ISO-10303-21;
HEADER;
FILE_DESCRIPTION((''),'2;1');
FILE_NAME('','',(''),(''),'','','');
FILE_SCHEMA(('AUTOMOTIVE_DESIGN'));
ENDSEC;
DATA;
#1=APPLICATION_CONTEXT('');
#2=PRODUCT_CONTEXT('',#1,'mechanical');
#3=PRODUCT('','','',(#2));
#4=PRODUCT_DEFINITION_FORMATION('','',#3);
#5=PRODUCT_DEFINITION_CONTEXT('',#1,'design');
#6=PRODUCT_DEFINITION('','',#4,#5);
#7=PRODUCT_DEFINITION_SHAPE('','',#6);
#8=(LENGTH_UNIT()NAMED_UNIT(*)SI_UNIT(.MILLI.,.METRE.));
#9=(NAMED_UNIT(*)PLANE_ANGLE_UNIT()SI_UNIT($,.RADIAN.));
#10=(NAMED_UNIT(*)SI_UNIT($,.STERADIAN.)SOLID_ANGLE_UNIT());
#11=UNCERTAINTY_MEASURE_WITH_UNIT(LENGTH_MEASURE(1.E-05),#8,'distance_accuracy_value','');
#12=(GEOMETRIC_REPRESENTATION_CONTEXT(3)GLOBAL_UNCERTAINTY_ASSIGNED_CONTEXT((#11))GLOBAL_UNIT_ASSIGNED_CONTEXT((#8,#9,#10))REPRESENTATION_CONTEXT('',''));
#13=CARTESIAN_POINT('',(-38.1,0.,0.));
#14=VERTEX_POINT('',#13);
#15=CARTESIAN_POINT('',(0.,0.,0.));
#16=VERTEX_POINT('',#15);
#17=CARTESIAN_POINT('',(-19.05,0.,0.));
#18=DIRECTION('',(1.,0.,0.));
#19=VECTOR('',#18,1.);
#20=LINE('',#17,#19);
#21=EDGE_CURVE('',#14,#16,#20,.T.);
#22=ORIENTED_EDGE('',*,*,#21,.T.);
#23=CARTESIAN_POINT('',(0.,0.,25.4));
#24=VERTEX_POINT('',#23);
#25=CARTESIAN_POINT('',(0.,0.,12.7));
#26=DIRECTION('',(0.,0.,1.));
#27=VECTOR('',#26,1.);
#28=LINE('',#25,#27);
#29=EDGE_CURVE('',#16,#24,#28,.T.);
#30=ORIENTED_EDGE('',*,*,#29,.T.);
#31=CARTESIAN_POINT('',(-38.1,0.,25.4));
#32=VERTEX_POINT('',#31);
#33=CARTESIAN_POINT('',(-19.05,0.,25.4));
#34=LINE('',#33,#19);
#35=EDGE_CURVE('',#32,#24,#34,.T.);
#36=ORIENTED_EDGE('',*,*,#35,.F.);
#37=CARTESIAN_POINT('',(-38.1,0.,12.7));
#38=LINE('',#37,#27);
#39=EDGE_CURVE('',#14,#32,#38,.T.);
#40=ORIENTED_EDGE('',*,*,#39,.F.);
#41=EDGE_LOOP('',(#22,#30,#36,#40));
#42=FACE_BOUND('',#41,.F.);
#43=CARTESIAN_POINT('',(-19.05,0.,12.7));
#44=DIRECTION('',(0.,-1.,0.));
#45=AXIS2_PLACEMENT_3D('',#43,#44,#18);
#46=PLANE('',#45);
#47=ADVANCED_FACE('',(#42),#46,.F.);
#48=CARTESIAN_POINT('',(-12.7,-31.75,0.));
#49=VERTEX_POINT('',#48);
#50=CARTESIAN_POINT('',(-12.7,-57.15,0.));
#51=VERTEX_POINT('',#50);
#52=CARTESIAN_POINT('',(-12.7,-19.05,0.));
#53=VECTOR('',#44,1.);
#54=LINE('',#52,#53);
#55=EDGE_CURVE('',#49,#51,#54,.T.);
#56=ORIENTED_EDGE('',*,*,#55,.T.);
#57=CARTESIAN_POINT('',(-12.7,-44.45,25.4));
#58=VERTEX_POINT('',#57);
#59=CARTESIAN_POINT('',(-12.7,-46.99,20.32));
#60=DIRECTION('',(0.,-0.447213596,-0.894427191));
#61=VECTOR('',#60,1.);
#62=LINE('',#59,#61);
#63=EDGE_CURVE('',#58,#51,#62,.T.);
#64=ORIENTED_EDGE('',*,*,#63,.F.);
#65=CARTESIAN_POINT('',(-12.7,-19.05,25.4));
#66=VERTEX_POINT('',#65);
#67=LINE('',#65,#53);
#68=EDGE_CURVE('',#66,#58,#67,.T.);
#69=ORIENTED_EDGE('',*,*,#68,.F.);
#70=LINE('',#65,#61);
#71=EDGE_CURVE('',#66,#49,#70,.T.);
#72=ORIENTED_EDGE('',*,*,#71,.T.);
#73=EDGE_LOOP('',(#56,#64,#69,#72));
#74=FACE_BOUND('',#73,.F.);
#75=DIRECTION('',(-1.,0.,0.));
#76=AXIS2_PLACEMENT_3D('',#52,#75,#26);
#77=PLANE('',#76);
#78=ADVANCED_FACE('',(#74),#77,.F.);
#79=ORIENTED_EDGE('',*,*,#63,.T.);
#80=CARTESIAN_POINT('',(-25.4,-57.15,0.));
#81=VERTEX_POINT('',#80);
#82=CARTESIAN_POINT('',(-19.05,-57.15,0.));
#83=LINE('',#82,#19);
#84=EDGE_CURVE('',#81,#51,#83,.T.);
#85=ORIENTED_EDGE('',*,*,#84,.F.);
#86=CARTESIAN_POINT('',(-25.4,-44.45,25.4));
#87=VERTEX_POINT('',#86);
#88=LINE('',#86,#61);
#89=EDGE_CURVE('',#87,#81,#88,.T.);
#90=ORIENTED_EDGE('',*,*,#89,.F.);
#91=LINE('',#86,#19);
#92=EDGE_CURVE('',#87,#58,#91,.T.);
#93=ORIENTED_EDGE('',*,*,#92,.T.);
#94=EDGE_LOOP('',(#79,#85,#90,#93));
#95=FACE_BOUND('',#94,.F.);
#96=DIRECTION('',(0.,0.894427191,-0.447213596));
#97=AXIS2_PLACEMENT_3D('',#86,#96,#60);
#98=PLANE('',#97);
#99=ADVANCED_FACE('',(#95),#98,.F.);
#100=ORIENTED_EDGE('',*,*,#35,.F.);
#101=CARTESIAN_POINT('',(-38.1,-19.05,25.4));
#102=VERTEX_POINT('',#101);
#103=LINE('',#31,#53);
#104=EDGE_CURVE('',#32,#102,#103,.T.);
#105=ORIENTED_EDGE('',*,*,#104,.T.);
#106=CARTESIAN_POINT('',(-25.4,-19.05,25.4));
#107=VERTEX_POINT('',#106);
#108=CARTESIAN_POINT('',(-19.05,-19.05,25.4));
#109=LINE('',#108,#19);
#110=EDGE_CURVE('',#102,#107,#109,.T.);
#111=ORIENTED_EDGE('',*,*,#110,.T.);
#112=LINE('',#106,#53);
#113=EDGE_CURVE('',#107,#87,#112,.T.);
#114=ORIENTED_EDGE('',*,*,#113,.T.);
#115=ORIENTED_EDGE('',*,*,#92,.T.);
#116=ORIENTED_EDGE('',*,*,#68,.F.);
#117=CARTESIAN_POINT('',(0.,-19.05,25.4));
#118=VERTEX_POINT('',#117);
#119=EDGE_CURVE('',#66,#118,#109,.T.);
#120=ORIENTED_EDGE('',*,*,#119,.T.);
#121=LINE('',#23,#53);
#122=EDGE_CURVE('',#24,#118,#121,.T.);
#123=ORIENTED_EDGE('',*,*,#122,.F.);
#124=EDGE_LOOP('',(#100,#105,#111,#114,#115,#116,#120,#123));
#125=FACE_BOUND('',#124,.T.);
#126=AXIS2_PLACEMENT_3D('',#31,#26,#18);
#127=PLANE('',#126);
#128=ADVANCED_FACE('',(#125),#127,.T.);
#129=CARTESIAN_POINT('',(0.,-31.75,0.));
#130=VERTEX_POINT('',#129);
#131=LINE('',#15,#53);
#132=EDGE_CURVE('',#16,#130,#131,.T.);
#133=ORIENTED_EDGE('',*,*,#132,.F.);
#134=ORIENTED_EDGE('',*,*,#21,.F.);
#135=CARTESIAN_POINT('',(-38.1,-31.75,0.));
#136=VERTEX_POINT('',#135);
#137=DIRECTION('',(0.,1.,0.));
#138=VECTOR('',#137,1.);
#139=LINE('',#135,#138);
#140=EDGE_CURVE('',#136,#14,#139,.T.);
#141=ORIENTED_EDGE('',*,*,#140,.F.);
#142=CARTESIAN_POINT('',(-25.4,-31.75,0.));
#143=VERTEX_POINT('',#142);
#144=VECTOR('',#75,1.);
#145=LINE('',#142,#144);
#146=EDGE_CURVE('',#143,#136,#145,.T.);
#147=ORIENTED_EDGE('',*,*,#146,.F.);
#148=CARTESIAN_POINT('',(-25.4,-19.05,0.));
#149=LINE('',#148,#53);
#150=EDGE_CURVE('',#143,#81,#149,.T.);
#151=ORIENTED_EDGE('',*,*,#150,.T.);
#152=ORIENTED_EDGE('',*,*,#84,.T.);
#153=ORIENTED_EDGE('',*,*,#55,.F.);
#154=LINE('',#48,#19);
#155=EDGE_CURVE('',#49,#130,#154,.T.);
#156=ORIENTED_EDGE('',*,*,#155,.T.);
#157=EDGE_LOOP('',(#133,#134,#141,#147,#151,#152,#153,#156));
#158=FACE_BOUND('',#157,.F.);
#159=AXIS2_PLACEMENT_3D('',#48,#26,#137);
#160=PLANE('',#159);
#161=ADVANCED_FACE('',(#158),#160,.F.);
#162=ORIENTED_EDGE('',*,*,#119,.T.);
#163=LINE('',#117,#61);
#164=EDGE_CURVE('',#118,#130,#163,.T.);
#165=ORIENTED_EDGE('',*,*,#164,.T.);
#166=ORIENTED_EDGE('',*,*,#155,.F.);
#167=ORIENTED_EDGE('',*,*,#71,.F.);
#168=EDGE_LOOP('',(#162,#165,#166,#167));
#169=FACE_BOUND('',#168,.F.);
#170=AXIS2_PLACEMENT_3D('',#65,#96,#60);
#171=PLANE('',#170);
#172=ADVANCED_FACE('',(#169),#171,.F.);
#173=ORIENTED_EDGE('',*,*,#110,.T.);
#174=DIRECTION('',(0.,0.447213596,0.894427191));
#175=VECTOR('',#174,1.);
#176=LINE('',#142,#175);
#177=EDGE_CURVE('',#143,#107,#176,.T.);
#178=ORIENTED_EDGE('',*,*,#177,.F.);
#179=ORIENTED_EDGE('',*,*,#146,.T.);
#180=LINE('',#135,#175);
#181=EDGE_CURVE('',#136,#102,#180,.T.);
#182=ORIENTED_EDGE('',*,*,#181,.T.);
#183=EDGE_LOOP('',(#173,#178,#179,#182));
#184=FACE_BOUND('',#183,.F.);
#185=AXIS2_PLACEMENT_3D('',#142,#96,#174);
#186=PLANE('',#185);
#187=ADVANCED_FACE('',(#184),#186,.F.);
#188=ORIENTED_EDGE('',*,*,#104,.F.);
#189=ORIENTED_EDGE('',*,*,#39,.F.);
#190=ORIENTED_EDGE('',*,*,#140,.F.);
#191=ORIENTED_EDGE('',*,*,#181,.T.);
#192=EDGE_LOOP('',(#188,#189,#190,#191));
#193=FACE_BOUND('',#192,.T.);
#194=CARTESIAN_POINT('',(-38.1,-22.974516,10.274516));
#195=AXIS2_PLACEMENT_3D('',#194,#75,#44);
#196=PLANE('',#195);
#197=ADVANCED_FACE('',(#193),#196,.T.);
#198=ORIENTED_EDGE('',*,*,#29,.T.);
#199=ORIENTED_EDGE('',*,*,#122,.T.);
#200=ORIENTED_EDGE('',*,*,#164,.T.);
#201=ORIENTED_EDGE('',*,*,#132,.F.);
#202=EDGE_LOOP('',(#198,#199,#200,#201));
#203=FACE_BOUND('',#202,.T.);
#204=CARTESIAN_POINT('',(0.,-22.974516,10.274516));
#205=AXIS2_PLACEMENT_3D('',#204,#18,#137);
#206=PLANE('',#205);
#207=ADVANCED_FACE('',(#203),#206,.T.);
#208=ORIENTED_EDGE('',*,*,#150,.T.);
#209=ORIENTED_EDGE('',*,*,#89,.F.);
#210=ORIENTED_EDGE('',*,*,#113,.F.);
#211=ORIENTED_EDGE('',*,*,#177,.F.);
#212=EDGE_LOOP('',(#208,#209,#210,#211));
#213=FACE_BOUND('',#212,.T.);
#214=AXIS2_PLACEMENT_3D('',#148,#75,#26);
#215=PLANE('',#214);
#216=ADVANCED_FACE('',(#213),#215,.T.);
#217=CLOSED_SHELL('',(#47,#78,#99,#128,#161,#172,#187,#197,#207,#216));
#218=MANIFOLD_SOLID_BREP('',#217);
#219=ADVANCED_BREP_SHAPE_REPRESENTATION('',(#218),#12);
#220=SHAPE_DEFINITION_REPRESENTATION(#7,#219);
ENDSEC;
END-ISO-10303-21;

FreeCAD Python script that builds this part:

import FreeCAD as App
import Part
import Sketcher
from FreeCAD import Vector
Q = App.Units.Quantity

doc = App.newDocument("Part")
body = doc.addObject("PartDesign::Body", "Body")

sketch1 = body.newObject("Sketcher::SketchObject", "Sketch")
sketch1.AttachmentSupport = (doc.getObject("XZ_Plane"), [""])
sketch1.MapMode = "FlatFace"
sketch1.addGeometry([
    Part.LineSegment(Vector(-38, 25, 0), Vector(-38, 0, 0)),
    Part.LineSegment(Vector(-38, 0, 0), Vector(0, 0, 0)),
    Part.LineSegment(Vector(0, 0, 0), Vector(0, 25, 0)),
    Part.LineSegment(Vector(0, 25, 0), Vector(-38, 25, 0)),
], False)
sketch1.addConstraint([
    Sketcher.Constraint("Coincident", 0, 2, 1, 1),
    Sketcher.Constraint("Coincident", 1, 2, 2, 1),
    Sketcher.Constraint("Coincident", 2, 2, 3, 1),
    Sketcher.Constraint("Coincident", 3, 2, 0, 1),
    Sketcher.Constraint("Vertical", 0),
    Sketcher.Constraint("Horizontal", 1),
    Sketcher.Constraint("Vertical", 2),
    Sketcher.Constraint("Horizontal", 3),
    Sketcher.Constraint("Coincident", 1, 2, -1, 1),
    Sketcher.Constraint("DistanceY", 0, 2, 0, 1, Q("1 in")),
    Sketcher.Constraint("DistanceX", 1, 1, 1, 2, Q("1.5 in")),
])
pad1 = body.newObject("PartDesign::Pad", "Pad")
pad1.Profile = sketch1
pad1.Length = Q("0.75 in")

sketch2 = body.newObject("Sketcher::SketchObject", "Sketch001")
sketch2.AttachmentSupport = (doc.getObject("XZ_Plane"), [""])
sketch2.MapMode = "FlatFace"
sketch2.AttachmentOffset = App.Placement(Vector(0, 0, 0.75 * 25.4), App.Rotation())
sketch2.addGeometry([
    Part.LineSegment(Vector(-25, 25, 0), Vector(-25, 0, 0)),
    Part.LineSegment(Vector(-25, 0, 0), Vector(-13, 0, 0)),
    Part.LineSegment(Vector(-13, 0, 0), Vector(-13, 25, 0)),
    Part.LineSegment(Vector(-13, 25, 0), Vector(-25, 25, 0)),
], False)
sketch2.addConstraint([
    Sketcher.Constraint("Coincident", 0, 2, 1, 1),
    Sketcher.Constraint("Coincident", 1, 2, 2, 1),
    Sketcher.Constraint("Coincident", 2, 2, 3, 1),
    Sketcher.Constraint("Coincident", 3, 2, 0, 1),
    Sketcher.Constraint("Vertical", 0),
    Sketcher.Constraint("Horizontal", 1),
    Sketcher.Constraint("Vertical", 2),
    Sketcher.Constraint("Horizontal", 3),
    Sketcher.Constraint("PointOnObject", 0, 2, -1),
    Sketcher.Constraint("DistanceY", 0, 2, 0, 1, Q("1 in")),
    Sketcher.Constraint("DistanceX", 1, 1, 1, 2, Q("0.5 in")),
    Sketcher.Constraint("DistanceX", 0, 2, -1, 1, Q("1 in")),
])
pad2 = body.newObject("PartDesign::Pad", "Pad001")
pad2.Profile = sketch2
pad2.Length = Q("1.5 in")

sketch3 = body.newObject("Sketcher::SketchObject", "Sketch002")
sketch3.AttachmentSupport = (doc.getObject("YZ_Plane"), [""])
sketch3.MapMode = "FlatFace"
sketch3.AttachmentOffset = App.Placement(Vector(0, 0, -1 * 25.4), App.Rotation())
sketch3.addGeometry([
    Part.LineSegment(Vector(-44, 25, 0), Vector(-57, 0, 0)),
    Part.LineSegment(Vector(-57, 0, 0), Vector(-57, 25, 0)),
    Part.LineSegment(Vector(-57, 25, 0), Vector(-44, 25, 0)),
], False)
sketch3.addConstraint([
    Sketcher.Constraint("Coincident", 0, 2, 1, 1),
    Sketcher.Constraint("Coincident", 1, 2, 2, 1),
    Sketcher.Constraint("Coincident", 2, 2, 0, 1),
    Sketcher.Constraint("Vertical", 1),
    Sketcher.Constraint("Horizontal", 2),
    Sketcher.Constraint("PointOnObject", 0, 2, -1),
    Sketcher.Constraint("DistanceY", 1, 1, 1, 2, Q("1 in")),
    Sketcher.Constraint("DistanceX", 2, 1, 2, 2, Q("0.5 in")),
    Sketcher.Constraint("DistanceX", 0, 2, -1, 1, Q("2.25 in")),
])
pocket1 = body.newObject("PartDesign::Pocket", "Pocket")
pocket1.Profile = sketch3
pocket1.Length = Q("1 in")
pocket1.Reversed = True

sketch4 = body.newObject("Sketcher::SketchObject", "Sketch003")
sketch4.AttachmentSupport = (doc.getObject("YZ_Plane"), [""])
sketch4.MapMode = "FlatFace"
sketch4.AttachmentOffset = App.Placement(Vector(0, 0, -1 * 25.4), App.Rotation())
sketch4.addGeometry([
    Part.LineSegment(Vector(-19, 0, 0), Vector(-32, 0, 0)),
    Part.LineSegment(Vector(-32, 0, 0), Vector(-19, 25, 0)),
    Part.LineSegment(Vector(-19, 25, 0), Vector(-19, 0, 0)),
], False)
sketch4.addConstraint([
    Sketcher.Constraint("Coincident", 0, 2, 1, 1),
    Sketcher.Constraint("Coincident", 1, 2, 2, 1),
    Sketcher.Constraint("Coincident", 2, 2, 0, 1),
    Sketcher.Constraint("Horizontal", 0),
    Sketcher.Constraint("Vertical", 2),
    Sketcher.Constraint("PointOnObject", 0, 2, -1),
    Sketcher.Constraint("DistanceY", 2, 2, 2, 1, Q("1 in")),
    Sketcher.Constraint("DistanceX", 0, 2, 0, 1, Q("0.5 in")),
    Sketcher.Constraint("DistanceX", 0, 2, -1, 1, Q("1.25 in")),
])
pad3 = body.newObject("PartDesign::Pad", "Pad002")
pad3.Profile = sketch4
pad3.Length = Q("0.5 in")
pad3.Reversed = True

sketch5 = body.newObject("Sketcher::SketchObject", "Sketch004")
sketch5.AttachmentSupport = (doc.getObject("YZ_Plane"), [""])
sketch5.MapMode = "FlatFace"
sketch5.AttachmentOffset = App.Placement(Vector(0, 0, -0.5 * 25.4), App.Rotation())
sketch5.addGeometry([
    Part.LineSegment(Vector(-19, 25, 0), Vector(-32, 0, 0)),
    Part.LineSegment(Vector(-32, 0, 0), Vector(-19, 0, 0)),
    Part.LineSegment(Vector(-19, 0, 0), Vector(-19, 25, 0)),
], False)
sketch5.addConstraint([
    Sketcher.Constraint("Coincident", 0, 2, 1, 1),
    Sketcher.Constraint("Coincident", 1, 2, 2, 1),
    Sketcher.Constraint("Coincident", 2, 2, 0, 1),
    Sketcher.Constraint("Horizontal", 1),
    Sketcher.Constraint("Vertical", 2),
    Sketcher.Constraint("PointOnObject", 0, 2, -1),
    Sketcher.Constraint("DistanceY", 2, 1, 2, 2, Q("1 in")),
    Sketcher.Constraint("DistanceX", 1, 1, 1, 2, Q("0.5 in")),
    Sketcher.Constraint("DistanceX", 0, 2, -1, 1, Q("1.25 in")),
])
pad4 = body.newObject("PartDesign::Pad", "Pad003")
pad4.Profile = sketch5
pad4.Length = Q("0.5 in")

doc.recompute()
